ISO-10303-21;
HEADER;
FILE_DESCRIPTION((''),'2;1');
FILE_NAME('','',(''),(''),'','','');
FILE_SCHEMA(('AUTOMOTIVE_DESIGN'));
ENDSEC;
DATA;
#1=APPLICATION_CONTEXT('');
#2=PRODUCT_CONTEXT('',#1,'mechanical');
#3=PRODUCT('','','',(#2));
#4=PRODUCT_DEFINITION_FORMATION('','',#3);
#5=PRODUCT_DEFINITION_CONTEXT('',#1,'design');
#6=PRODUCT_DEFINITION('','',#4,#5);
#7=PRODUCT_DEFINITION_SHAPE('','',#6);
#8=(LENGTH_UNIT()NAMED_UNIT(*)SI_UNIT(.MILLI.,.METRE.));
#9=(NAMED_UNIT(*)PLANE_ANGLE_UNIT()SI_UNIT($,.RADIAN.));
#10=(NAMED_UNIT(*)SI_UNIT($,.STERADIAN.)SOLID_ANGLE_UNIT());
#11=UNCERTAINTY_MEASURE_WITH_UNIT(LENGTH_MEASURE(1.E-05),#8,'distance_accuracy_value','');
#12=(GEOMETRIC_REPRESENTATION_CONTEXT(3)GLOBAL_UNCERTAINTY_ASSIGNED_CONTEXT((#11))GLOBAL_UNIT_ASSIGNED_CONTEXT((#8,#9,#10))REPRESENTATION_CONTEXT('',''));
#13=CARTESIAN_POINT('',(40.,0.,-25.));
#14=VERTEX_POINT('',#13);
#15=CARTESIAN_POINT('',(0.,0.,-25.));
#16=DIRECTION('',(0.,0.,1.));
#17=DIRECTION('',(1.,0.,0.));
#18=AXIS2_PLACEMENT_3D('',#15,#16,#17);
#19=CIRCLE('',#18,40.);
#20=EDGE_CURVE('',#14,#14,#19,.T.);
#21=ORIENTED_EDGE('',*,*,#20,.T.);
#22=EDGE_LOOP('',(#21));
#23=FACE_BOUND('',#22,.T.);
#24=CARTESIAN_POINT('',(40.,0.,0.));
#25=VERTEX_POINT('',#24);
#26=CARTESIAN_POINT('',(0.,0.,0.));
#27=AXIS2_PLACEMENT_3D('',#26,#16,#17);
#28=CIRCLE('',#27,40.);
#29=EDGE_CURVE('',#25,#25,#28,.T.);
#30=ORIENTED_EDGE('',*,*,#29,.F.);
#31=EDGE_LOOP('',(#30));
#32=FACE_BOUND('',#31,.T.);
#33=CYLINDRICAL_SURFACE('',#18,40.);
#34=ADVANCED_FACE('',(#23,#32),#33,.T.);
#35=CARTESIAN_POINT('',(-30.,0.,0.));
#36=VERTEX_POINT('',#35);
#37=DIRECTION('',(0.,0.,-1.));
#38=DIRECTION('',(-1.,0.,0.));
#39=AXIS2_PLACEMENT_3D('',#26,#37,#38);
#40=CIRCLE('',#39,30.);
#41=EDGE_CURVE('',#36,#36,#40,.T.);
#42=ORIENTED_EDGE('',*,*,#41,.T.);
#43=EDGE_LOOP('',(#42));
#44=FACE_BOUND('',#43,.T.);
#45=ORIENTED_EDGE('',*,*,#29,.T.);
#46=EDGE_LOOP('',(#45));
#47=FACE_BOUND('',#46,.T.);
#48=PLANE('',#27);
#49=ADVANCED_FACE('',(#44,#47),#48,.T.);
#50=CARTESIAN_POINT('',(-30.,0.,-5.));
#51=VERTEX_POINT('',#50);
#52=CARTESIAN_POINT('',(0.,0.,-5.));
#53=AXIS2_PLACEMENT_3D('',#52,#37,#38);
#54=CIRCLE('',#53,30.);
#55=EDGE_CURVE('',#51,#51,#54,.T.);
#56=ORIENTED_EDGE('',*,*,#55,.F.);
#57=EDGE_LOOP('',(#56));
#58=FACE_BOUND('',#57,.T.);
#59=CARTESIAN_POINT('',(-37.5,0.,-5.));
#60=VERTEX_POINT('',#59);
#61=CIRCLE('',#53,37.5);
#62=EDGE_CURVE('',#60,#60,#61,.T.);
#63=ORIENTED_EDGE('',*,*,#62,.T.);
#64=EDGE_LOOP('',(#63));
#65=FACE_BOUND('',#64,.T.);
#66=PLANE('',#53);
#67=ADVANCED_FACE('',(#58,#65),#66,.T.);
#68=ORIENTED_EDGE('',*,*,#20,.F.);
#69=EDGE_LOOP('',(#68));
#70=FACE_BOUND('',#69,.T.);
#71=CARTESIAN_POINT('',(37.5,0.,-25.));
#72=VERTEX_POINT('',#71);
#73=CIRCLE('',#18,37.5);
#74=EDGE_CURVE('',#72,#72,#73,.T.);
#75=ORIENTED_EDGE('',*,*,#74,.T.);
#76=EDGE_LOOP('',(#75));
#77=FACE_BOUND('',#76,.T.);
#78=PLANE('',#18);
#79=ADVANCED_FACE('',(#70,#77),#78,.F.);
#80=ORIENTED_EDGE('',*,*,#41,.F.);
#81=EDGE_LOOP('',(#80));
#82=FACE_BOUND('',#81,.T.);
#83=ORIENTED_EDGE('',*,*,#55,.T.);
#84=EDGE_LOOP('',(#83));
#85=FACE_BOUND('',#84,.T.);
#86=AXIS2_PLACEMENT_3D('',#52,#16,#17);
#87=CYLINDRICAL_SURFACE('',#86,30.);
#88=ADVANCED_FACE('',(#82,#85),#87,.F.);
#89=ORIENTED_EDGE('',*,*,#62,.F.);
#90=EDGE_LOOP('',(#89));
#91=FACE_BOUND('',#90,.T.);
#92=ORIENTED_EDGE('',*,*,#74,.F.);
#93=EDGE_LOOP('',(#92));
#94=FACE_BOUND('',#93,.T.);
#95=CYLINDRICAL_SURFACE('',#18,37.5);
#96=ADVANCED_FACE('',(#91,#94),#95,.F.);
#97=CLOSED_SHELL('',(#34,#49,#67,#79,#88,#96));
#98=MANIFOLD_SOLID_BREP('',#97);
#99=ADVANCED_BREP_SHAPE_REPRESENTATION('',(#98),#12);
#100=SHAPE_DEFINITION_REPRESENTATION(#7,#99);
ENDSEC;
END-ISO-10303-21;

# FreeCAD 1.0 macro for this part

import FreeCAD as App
import Part
import Sketcher
Q = App.Units.Quantity

doc = App.newDocument("Part")
params = doc.addObject("Spreadsheet::Sheet", "Params")
for row, (alias, value) in enumerate([
    ("sketch1_diameter", "80 mm"),
    ("sketch1_diameter2", "75 mm"),
    ("pad1_length", "25 mm"),
    ("sketch2_diameter", "75 mm"),
    ("sketch2_diameter2", "60 mm"),
    ("pad2_length", "5 mm"),
], start=1):
    params.set(f"A{row}", alias)
    params.set(f"B{row}", "=" + value)
    params.setAlias(f"B{row}", alias)

body = doc.addObject("PartDesign::Body", "Body")

sketch1 = body.newObject("Sketcher::SketchObject", "Sketch")
sketch1.AttachmentSupport = (doc.getObject("XY_Plane"), [""])
sketch1.MapMode = "FlatFace"
sketch1.addGeometry(Part.Circle(App.Vector(0, 0, 0), App.Vector(0, 0, 1), 40), False)
sketch1.addGeometry(Part.Circle(App.Vector(0, 0, 0), App.Vector(0, 0, 1), 38), False)
sketch1.addConstraint(Sketcher.Constraint("Coincident", 0, 3, -1, 1))
sketch1.addConstraint(Sketcher.Constraint("Coincident", 1, 3, -1, 1))
sketch1.addConstraint(Sketcher.Constraint("Diameter", 0, Q("80 mm")))
sketch1.addConstraint(Sketcher.Constraint("Diameter", 1, Q("75 mm")))
sketch1.setExpression("Constraints[2]", "Params.sketch1_diameter")
sketch1.setExpression("Constraints[3]", "Params.sketch1_diameter2")
pad1 = body.newObject("PartDesign::Pad", "Pad")
pad1.Profile = sketch1
pad1.setExpression("Length", "Params.pad1_length")
pad1.Reversed = True

sketch2 = body.newObject("Sketcher::SketchObject", "Sketch001")
sketch2.AttachmentSupport = (doc.getObject("XY_Plane"), [""])
sketch2.MapMode = "FlatFace"
sketch2.addGeometry(Part.Circle(App.Vector(0, 0, 0), App.Vector(0, 0, 1), 38), False)
sketch2.addGeometry(Part.Circle(App.Vector(0, 0, 0), App.Vector(0, 0, 1), 30), False)
sketch2.addConstraint(Sketcher.Constraint("Coincident", 0, 3, -1, 1))
sketch2.addConstraint(Sketcher.Constraint("Coincident", 1, 3, -1, 1))
sketch2.addConstraint(Sketcher.Constraint("Diameter", 0, Q("75 mm")))
sketch2.addConstraint(Sketcher.Constraint("Diameter", 1, Q("60 mm")))
sketch2.setExpression("Constraints[2]", "Params.sketch2_diameter")
sketch2.setExpression("Constraints[3]", "Params.sketch2_diameter2")
pad2 = body.newObject("PartDesign::Pad", "Pad001")
pad2.Profile = sketch2
pad2.setExpression("Length", "Params.pad2_length")
pad2.Reversed = True

doc.recompute()
